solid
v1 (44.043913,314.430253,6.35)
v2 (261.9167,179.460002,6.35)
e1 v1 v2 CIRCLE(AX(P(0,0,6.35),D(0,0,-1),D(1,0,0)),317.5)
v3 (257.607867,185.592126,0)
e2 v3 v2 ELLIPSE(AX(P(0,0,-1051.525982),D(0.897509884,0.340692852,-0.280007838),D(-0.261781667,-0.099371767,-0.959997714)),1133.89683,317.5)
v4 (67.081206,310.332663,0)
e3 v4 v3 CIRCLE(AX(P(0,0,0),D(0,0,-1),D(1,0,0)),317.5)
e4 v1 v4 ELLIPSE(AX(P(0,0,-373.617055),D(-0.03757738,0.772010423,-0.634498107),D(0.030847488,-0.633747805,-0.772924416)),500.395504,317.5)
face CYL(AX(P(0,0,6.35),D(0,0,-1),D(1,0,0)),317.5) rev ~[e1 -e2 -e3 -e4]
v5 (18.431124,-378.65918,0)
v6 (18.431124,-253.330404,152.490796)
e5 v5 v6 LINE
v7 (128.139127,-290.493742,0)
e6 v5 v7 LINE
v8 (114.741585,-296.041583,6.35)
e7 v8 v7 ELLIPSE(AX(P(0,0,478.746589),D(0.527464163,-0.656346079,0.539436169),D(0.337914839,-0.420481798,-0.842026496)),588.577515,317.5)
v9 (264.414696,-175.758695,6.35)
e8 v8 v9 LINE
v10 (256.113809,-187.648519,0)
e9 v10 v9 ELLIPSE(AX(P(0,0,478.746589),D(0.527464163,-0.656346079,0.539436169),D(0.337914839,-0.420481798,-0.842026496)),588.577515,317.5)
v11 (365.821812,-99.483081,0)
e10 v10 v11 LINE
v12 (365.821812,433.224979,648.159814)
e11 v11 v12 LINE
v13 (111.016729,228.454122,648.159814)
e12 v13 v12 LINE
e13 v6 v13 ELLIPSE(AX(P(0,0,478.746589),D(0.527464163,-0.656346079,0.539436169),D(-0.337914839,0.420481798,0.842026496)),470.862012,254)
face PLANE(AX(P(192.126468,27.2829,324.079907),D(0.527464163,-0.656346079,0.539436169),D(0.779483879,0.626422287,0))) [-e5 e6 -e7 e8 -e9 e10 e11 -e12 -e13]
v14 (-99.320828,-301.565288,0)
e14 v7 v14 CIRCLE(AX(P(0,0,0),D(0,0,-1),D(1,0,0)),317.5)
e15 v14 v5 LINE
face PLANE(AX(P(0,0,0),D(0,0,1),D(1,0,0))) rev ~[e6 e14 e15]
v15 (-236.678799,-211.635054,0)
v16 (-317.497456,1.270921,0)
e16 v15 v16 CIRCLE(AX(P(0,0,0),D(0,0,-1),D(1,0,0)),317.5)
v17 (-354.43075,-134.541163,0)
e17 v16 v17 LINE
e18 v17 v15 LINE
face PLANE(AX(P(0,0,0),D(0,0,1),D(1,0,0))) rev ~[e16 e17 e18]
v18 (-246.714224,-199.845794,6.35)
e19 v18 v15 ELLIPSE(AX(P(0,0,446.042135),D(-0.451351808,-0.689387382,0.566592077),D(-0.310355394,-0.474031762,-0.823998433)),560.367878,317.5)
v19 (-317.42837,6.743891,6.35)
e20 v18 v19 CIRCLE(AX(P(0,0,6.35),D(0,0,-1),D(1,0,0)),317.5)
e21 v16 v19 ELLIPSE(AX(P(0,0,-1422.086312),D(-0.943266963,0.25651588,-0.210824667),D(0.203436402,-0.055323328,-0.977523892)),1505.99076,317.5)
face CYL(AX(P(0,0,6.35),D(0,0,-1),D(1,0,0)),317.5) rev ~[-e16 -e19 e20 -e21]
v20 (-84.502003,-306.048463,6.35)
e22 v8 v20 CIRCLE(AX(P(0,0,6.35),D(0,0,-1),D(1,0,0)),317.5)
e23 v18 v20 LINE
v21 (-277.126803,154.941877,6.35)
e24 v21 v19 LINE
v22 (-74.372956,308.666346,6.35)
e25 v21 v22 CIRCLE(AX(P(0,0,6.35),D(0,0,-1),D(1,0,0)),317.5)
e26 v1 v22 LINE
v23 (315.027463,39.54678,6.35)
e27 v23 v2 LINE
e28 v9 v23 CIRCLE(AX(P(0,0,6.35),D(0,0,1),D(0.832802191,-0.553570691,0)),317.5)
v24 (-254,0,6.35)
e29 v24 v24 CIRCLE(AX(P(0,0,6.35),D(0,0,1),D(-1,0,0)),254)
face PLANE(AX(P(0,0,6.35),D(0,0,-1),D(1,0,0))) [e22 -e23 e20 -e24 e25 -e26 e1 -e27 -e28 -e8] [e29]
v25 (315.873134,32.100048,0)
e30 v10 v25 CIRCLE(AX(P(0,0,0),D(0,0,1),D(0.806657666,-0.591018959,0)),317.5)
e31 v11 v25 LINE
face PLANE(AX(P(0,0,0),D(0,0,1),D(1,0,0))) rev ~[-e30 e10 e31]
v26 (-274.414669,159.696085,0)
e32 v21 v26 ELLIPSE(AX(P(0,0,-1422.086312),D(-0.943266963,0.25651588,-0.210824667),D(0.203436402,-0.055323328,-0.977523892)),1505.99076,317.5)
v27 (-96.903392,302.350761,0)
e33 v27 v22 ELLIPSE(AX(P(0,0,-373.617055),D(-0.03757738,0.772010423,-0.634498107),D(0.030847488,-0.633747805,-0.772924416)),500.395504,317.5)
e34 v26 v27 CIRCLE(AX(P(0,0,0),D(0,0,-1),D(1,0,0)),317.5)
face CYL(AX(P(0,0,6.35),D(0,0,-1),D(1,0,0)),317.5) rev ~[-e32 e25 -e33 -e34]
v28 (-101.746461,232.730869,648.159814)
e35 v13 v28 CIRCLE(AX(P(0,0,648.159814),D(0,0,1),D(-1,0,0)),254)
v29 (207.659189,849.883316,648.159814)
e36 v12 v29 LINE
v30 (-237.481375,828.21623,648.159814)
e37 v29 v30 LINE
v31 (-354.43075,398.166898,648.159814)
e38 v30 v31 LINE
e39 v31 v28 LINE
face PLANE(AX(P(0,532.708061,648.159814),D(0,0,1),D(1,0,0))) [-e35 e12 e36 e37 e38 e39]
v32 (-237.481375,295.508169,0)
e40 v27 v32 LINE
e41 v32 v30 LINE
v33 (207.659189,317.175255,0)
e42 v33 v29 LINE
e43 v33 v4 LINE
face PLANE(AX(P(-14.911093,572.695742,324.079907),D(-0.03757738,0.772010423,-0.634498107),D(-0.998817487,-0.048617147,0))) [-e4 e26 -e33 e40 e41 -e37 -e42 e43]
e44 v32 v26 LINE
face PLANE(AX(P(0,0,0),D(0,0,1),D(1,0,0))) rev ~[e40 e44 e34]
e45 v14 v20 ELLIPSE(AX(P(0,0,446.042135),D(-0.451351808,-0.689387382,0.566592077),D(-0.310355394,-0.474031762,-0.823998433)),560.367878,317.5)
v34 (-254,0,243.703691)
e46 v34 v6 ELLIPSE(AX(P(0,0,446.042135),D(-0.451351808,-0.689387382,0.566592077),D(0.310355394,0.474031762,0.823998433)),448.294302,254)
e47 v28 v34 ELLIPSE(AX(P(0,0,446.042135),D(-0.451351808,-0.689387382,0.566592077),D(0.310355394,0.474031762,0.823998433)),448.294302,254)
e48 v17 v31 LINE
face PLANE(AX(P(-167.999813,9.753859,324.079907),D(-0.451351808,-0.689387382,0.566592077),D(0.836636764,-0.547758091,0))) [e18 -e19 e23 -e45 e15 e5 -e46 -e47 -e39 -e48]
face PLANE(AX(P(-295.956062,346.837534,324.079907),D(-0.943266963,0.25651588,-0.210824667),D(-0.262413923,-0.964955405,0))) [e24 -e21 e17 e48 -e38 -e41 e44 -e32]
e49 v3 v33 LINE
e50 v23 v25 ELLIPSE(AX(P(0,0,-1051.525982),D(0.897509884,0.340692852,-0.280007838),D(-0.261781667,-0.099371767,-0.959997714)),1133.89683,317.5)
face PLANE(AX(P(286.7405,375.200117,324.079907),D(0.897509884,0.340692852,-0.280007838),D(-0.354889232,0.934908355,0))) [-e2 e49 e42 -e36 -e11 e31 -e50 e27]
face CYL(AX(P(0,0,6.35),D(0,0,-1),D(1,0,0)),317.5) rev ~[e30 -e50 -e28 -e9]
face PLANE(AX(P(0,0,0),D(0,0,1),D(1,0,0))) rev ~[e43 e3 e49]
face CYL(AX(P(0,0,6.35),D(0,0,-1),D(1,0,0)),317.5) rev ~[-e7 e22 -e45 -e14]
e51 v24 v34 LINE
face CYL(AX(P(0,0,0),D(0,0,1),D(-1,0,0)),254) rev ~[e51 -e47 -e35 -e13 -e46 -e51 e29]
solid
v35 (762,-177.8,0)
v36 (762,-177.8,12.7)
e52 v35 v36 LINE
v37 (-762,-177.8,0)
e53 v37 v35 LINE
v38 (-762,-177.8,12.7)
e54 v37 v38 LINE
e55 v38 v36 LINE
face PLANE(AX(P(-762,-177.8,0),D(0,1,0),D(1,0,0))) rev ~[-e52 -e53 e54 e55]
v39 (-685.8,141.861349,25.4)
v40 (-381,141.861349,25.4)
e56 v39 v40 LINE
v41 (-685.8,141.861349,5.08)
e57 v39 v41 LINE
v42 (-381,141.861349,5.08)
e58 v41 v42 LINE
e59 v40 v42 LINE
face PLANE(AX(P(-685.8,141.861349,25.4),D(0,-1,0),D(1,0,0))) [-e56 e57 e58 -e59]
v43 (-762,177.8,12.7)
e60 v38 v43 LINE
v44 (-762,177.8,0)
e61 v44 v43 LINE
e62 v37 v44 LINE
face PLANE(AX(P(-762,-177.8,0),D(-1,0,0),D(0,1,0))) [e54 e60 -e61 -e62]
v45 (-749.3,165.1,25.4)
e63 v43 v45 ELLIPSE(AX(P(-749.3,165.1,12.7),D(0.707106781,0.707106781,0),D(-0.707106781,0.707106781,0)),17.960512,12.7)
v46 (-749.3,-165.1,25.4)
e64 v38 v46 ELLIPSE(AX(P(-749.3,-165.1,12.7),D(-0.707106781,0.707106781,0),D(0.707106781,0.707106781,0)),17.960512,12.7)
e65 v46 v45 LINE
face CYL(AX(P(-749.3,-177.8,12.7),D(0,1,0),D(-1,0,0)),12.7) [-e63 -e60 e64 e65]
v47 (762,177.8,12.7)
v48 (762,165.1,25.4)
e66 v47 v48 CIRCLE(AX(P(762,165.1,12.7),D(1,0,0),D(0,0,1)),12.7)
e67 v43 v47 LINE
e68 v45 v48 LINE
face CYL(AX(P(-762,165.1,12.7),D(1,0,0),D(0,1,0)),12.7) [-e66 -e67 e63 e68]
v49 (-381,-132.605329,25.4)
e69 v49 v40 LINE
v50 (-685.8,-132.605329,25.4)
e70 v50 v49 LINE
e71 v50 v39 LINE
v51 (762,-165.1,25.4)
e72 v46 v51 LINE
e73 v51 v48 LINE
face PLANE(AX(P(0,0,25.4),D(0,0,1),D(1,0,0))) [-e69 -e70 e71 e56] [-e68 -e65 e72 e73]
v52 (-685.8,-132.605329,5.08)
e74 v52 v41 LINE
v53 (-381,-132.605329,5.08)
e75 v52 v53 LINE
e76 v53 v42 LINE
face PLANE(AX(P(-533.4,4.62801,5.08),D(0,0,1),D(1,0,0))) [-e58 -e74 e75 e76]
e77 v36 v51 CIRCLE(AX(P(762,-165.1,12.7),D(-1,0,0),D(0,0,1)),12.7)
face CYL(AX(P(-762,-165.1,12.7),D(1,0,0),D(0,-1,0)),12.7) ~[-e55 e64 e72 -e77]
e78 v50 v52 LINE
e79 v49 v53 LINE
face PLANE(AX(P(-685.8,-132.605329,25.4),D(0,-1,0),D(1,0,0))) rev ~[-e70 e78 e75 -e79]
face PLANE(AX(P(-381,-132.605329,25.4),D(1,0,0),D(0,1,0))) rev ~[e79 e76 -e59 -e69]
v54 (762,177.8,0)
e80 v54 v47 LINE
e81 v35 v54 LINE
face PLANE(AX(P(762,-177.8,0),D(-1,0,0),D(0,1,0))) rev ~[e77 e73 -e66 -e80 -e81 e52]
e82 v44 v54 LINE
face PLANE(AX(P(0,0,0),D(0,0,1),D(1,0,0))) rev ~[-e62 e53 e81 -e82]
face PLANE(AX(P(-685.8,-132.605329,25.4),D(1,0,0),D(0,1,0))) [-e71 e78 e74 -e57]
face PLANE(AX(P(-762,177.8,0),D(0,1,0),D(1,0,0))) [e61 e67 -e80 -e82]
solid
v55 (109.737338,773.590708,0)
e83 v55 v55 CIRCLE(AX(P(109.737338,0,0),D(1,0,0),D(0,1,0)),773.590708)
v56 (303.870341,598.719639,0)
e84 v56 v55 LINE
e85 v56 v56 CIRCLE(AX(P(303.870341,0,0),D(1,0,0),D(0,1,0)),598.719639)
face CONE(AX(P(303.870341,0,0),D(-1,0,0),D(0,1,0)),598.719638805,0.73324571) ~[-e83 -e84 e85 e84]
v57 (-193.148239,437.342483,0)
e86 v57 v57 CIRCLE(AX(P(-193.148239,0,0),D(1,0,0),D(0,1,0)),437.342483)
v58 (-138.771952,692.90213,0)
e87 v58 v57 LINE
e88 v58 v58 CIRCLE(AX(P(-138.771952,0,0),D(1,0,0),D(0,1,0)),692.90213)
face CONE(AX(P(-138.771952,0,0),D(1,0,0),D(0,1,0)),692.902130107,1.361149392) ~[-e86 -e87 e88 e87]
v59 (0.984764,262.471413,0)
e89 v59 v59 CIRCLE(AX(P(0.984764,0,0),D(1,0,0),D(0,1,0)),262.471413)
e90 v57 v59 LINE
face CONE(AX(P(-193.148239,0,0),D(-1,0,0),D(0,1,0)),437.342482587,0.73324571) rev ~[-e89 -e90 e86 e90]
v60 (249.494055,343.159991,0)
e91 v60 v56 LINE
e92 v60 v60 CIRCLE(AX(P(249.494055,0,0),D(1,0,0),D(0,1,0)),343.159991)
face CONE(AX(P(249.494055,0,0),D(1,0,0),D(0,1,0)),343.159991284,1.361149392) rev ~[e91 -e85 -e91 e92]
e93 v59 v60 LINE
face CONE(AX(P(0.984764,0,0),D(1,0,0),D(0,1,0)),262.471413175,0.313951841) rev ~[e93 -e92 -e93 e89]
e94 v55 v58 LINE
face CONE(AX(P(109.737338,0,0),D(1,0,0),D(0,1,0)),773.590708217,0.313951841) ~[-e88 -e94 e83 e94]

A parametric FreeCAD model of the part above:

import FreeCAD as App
import Part
import Sketcher
Q = App.Units.Quantity


def edges_at(feature, points):
    """Names of the edges that pass closest to the given points."""
    edges = feature.Shape.Edges
    near = lambda p: min(range(len(edges)), key=lambda i: edges[i].distToShape(Part.Vertex(*p))[0])
    return sorted({f"Edge{near(p) + 1}" for p in points})

doc = App.newDocument("Part")
body = doc.addObject("PartDesign::Body", "Body")

# Sketch on XY plane
sketch1 = body.newObject("Sketcher::SketchObject", "Sketch")
sketch1.AttachmentSupport = (doc.getObject("XY_Plane"), [""])
sketch1.MapMode = "FlatFace"
sketch1.addGeometry(Part.LineSegment(App.Vector(-762, 178, 0), App.Vector(-762, -178, 0)), False)
sketch1.addGeometry(Part.LineSegment(App.Vector(-762, -178, 0), App.Vector(762, -178, 0)), False)
sketch1.addGeometry(Part.LineSegment(App.Vector(762, -178, 0), App.Vector(762, 178, 0)), False)
sketch1.addGeometry(Part.LineSegment(App.Vector(762, 178, 0), App.Vector(-762, 178, 0)), False)
sketch1.addConstraint(Sketcher.Constraint("Coincident", 0, 2, 1, 1))
sketch1.addConstraint(Sketcher.Constraint("Coincident", 1, 2, 2, 1))
sketch1.addConstraint(Sketcher.Constraint("Coincident", 2, 2, 3, 1))
sketch1.addConstraint(Sketcher.Constraint("Coincident", 3, 2, 0, 1))
sketch1.addConstraint(Sketcher.Constraint("Vertical", 0))
sketch1.addConstraint(Sketcher.Constraint("Horizontal", 1))
sketch1.addConstraint(Sketcher.Constraint("Vertical", 2))
sketch1.addConstraint(Sketcher.Constraint("Horizontal", 3))
sketch1.addConstraint(Sketcher.Constraint("Symmetric", 0, 2, 2, 2, -1, 1))
sketch1.addConstraint(Sketcher.Constraint("DistanceX", 1, 1, 1, 2, Q("60 in")))
sketch1.addConstraint(Sketcher.Constraint("DistanceY", 0, 2, 0, 1, Q("14 in")))
pad1 = body.newObject("PartDesign::Pad", "Pad")
pad1.Profile = sketch1
pad1.Length = Q("1 in")

# Sketch on XY plane
sketch2 = body.newObject("Sketcher::SketchObject", "Sketch001")
sketch2.AttachmentSupport = (doc.getObject("XY_Plane"), [""])
sketch2.MapMode = "FlatFace"
sketch2.AttachmentOffset = App.Placement(App.Vector(0, 0, 1 * 25.4), App.Rotation())
sketch2.addGeometry(Part.LineSegment(App.Vector(-686, 142, 0), App.Vector(-686, -133, 0)), False)
sketch2.addGeometry(Part.LineSegment(App.Vector(-686, -133, 0), App.Vector(-381, -133, 0)), False)
sketch2.addGeometry(Part.LineSegment(App.Vector(-381, -133, 0), App.Vector(-381, 142, 0)), False)
sketch2.addGeometry(Part.LineSegment(App.Vector(-381, 142, 0), App.Vector(-686, 142, 0)), False)
sketch2.addConstraint(Sketcher.Constraint("Coincident", 0, 2, 1, 1))
sketch2.addConstraint(Sketcher.Constraint("Coincident", 1, 2, 2, 1))
sketch2.addConstraint(Sketcher.Constraint("Coincident", 2, 2, 3, 1))
sketch2.addConstraint(Sketcher.Constraint("Coincident", 3, 2, 0, 1))
sketch2.addConstraint(Sketcher.Constraint("Vertical", 0))
sketch2.addConstraint(Sketcher.Constraint("Horizontal", 1))
sketch2.addConstraint(Sketcher.Constraint("Vertical", 2))
sketch2.addConstraint(Sketcher.Constraint("Horizontal", 3))
sketch2.addConstraint(Sketcher.Constraint("DistanceX", 1, 1, 1, 2, Q("12 in")))
sketch2.addConstraint(Sketcher.Constraint("DistanceX", 0, 2, -1, 1, Q("27 in")))
sketch2.addConstraint(Sketcher.Constraint("DistanceY", 0, 2, 0, 1, Q("274.466679 mm")))
sketch2.addConstraint(Sketcher.Constraint("DistanceY", 0, 2, -1, 1, Q("132.605329 mm")))
pocket1 = body.newObject("PartDesign::Pocket", "Pocket")
pocket1.Profile = sketch2
pocket1.Length = Q("0.8 in")
doc.recompute()

fillet = body.newObject("PartDesign::Fillet", "Fillet")
fillet.Base = (pocket1, edges_at(pocket1, [(0, -177.8, 25.4), (-762, 0, 25.4), (0, 177.8, 25.4)]))
fillet.Radius = Q("0.5 in")
body2 = doc.addObject("PartDesign::Body", "Body001")

# Sketch on XY plane
sketch3 = body2.newObject("Sketcher::SketchObject", "Sketch002")
sketch3.AttachmentSupport = (doc.getObject("XY_Plane001"), [""])
sketch3.MapMode = "FlatFace"
sketch3.addGeometry(Part.LineSegment(App.Vector(249, 343, 0), App.Vector(304, 599, 0)), False)
sketch3.addGeometry(Part.LineSegment(App.Vector(304, 599, 0), App.Vector(110, 774, 0)), False)
sketch3.addGeometry(Part.LineSegment(App.Vector(110, 774, 0), App.Vector(-139, 693, 0)), False)
sketch3.addGeometry(Part.LineSegment(App.Vector(-139, 693, 0), App.Vector(-193, 437, 0)), False)
sketch3.addGeometry(Part.LineSegment(App.Vector(-193, 437, 0), App.Vector(1, 262, 0)), False)
sketch3.addGeometry(Part.LineSegment(App.Vector(1, 262, 0), App.Vector(249, 343, 0)), False)
sketch3.addConstraint(Sketcher.Constraint("Coincident", 0, 2, 1, 1))
sketch3.addConstraint(Sketcher.Constraint("Coincident", 1, 2, 2, 1))
sketch3.addConstraint(Sketcher.Constraint("Coincident", 2, 2, 3, 1))
sketch3.addConstraint(Sketcher.Constraint("Coincident", 3, 2, 4, 1))
sketch3.addConstraint(Sketcher.Constraint("Coincident", 4, 2, 5, 1))
sketch3.addConstraint(Sketcher.Constraint("Coincident", 5, 2, 0, 1))
sketch3.addConstraint(Sketcher.Constraint("Parallel", 0, 3))
sketch3.addConstraint(Sketcher.Constraint("Parallel", 1, 4))
sketch3.addConstraint(Sketcher.Constraint("Parallel", 2, 5))
sketch3.addConstraint(Sketcher.Constraint("Equal", 0, 1))
sketch3.addConstraint(Sketcher.Constraint("Equal", 1, 2))
sketch3.addConstraint(Sketcher.Constraint("Equal", 2, 3))
sketch3.addConstraint(Sketcher.Constraint("DistanceX", -1, 1, 0, 2, Q("303.870341 mm")))
sketch3.addConstraint(Sketcher.Constraint("DistanceY", -1, 1, 0, 2, Q("598.719639 mm")))
sketch3.addConstraint(Sketcher.Constraint("DistanceY", -1, 1, 1, 2, Q("773.590708 mm")))
sketch3.addConstraint(Sketcher.Constraint("DistanceY", -1, 1, 2, 2, Q("692.90213 mm")))
sketch3.addConstraint(Sketcher.Constraint("DistanceX", 3, 2, -1, 1, Q("193.148239 mm")))
sketch3.addConstraint(Sketcher.Constraint("DistanceY", -1, 1, 5, 2, Q("343.159991 mm")))
revolution = body2.newObject("PartDesign::Revolution", "Revolution")
revolution.Profile = sketch3
revolution.ReferenceAxis = (sketch3, ["H_Axis"])
revolution.Angle = 360
body3 = doc.addObject("PartDesign::Body", "Body002")

# Sketch on XY plane
sketch4 = body3.newObject("Sketcher::SketchObject", "Sketch003")
sketch4.AttachmentSupport = (doc.getObject("XY_Plane002"), [""])
sketch4.MapMode = "FlatFace"
sketch4.addGeometry(Part.LineSegment(App.Vector(18, -379, 0), App.Vector(366, -99, 0)), False)
sketch4.addGeometry(Part.LineSegment(App.Vector(366, -99, 0), App.Vector(208, 317, 0)), False)
sketch4.addGeometry(Part.LineSegment(App.Vector(208, 317, 0), App.Vector(-237, 296, 0)), False)
sketch4.addGeometry(Part.LineSegment(App.Vector(-237, 296, 0), App.Vector(-354, -135, 0)), False)
sketch4.addGeometry(Part.LineSegment(App.Vector(-354, -135, 0), App.Vector(18, -379, 0)), False)
sketch4.addConstraint(Sketcher.Constraint("Coincident", 0, 2, 1, 1))
sketch4.addConstraint(Sketcher.Constraint("Coincident", 1, 2, 2, 1))
sketch4.addConstraint(Sketcher.Constraint("Coincident", 2, 2, 3, 1))
sketch4.addConstraint(Sketcher.Constraint("Coincident", 3, 2, 4, 1))
sketch4.addConstraint(Sketcher.Constraint("Coincident", 4, 2, 0, 1))
sketch4.addConstraint(Sketcher.Constraint("Equal", 0, 1))
sketch4.addConstraint(Sketcher.Constraint("Equal", 1, 2))
sketch4.addConstraint(Sketcher.Constraint("Equal", 2, 3))
sketch4.addConstraint(Sketcher.Constraint("Equal", 3, 4))
sketch4.addConstraint(Sketcher.Constraint("DistanceX", 3, 2, 0, 2, Q("28.3564001 in")))
sketch4.addConstraint(Sketcher.Constraint("DistanceY", 4, 2, 0, 2, Q("279.176099 mm")))
sketch4.addConstraint(Sketcher.Constraint("DistanceX", 2, 2, 4, 2, Q("255.912499 mm")))
sketch4.addConstraint(Sketcher.Constraint("Distance", 0, Q("445.667571 mm")))
sketch4.addConstraint(Sketcher.Constraint("DistanceX", -1, 1, 0, 2, Q("365.821812 mm")))
sketch4.addConstraint(Sketcher.Constraint("DistanceY", 0, 2, -1, 1, Q("99.483081 mm")))

# Sketch on an angled plane
sketch5 = body3.newObject("Sketcher::SketchObject", "Sketch004")
sketch5.Placement = App.Placement(App.Vector(0, 0, 0), App.Rotation(App.Vector(0, -0.634946556, -0.772556063), App.Vector(0.999999999, 0, 0), App.Vector(0, -0.772556063, 0.634946556), "ZXY"))
sketch5.addGeometry(Part.LineSegment(App.Vector(0, 0, 0), App.Vector(-839, 0, 0)), False)
sketch5.addConstraint(Sketcher.Constraint("Horizontal", 0))
sketch5.addConstraint(Sketcher.Constraint("Coincident", 0, 1, -1, 1))
sketch5.addConstraint(Sketcher.Constraint("DistanceX", 0, 2, 0, 1, Q("838.980942 mm")))
doc.recompute()

additivepipe = body3.newObject("PartDesign::AdditivePipe", "AdditivePipe")
additivepipe.Profile = sketch4
additivepipe.Spine = (sketch5, ["Edge1"])

# Sketch on XY plane
sketch6 = body3.newObject("Sketcher::SketchObject", "Sketch005")
sketch6.AttachmentSupport = (doc.getObject("XY_Plane002"), [""])
sketch6.MapMode = "FlatFace"
sketch6.addGeometry(Part.Circle(App.Vector(0, 0, 0), App.Vector(0, 0, 1), 254), False)
sketch6.addConstraint(Sketcher.Constraint("Coincident", 0, 3, -1, 1))
sketch6.addConstraint(Sketcher.Constraint("Diameter", 0, Q("20 in")))
doc.recompute()
hole = body3.newObject("PartDesign::Hole", "Hole")
hole.Profile = sketch6
hole.ThreadType = "None"
hole.Diameter = Q("20 in")
hole.DepthType = "ThroughAll"
hole.HoleCutType = "Counterbore"
hole.HoleCutDiameter = Q("25 in")
hole.HoleCutDepth = Q("0.25 in")
hole.Reversed = True

doc.recompute()
